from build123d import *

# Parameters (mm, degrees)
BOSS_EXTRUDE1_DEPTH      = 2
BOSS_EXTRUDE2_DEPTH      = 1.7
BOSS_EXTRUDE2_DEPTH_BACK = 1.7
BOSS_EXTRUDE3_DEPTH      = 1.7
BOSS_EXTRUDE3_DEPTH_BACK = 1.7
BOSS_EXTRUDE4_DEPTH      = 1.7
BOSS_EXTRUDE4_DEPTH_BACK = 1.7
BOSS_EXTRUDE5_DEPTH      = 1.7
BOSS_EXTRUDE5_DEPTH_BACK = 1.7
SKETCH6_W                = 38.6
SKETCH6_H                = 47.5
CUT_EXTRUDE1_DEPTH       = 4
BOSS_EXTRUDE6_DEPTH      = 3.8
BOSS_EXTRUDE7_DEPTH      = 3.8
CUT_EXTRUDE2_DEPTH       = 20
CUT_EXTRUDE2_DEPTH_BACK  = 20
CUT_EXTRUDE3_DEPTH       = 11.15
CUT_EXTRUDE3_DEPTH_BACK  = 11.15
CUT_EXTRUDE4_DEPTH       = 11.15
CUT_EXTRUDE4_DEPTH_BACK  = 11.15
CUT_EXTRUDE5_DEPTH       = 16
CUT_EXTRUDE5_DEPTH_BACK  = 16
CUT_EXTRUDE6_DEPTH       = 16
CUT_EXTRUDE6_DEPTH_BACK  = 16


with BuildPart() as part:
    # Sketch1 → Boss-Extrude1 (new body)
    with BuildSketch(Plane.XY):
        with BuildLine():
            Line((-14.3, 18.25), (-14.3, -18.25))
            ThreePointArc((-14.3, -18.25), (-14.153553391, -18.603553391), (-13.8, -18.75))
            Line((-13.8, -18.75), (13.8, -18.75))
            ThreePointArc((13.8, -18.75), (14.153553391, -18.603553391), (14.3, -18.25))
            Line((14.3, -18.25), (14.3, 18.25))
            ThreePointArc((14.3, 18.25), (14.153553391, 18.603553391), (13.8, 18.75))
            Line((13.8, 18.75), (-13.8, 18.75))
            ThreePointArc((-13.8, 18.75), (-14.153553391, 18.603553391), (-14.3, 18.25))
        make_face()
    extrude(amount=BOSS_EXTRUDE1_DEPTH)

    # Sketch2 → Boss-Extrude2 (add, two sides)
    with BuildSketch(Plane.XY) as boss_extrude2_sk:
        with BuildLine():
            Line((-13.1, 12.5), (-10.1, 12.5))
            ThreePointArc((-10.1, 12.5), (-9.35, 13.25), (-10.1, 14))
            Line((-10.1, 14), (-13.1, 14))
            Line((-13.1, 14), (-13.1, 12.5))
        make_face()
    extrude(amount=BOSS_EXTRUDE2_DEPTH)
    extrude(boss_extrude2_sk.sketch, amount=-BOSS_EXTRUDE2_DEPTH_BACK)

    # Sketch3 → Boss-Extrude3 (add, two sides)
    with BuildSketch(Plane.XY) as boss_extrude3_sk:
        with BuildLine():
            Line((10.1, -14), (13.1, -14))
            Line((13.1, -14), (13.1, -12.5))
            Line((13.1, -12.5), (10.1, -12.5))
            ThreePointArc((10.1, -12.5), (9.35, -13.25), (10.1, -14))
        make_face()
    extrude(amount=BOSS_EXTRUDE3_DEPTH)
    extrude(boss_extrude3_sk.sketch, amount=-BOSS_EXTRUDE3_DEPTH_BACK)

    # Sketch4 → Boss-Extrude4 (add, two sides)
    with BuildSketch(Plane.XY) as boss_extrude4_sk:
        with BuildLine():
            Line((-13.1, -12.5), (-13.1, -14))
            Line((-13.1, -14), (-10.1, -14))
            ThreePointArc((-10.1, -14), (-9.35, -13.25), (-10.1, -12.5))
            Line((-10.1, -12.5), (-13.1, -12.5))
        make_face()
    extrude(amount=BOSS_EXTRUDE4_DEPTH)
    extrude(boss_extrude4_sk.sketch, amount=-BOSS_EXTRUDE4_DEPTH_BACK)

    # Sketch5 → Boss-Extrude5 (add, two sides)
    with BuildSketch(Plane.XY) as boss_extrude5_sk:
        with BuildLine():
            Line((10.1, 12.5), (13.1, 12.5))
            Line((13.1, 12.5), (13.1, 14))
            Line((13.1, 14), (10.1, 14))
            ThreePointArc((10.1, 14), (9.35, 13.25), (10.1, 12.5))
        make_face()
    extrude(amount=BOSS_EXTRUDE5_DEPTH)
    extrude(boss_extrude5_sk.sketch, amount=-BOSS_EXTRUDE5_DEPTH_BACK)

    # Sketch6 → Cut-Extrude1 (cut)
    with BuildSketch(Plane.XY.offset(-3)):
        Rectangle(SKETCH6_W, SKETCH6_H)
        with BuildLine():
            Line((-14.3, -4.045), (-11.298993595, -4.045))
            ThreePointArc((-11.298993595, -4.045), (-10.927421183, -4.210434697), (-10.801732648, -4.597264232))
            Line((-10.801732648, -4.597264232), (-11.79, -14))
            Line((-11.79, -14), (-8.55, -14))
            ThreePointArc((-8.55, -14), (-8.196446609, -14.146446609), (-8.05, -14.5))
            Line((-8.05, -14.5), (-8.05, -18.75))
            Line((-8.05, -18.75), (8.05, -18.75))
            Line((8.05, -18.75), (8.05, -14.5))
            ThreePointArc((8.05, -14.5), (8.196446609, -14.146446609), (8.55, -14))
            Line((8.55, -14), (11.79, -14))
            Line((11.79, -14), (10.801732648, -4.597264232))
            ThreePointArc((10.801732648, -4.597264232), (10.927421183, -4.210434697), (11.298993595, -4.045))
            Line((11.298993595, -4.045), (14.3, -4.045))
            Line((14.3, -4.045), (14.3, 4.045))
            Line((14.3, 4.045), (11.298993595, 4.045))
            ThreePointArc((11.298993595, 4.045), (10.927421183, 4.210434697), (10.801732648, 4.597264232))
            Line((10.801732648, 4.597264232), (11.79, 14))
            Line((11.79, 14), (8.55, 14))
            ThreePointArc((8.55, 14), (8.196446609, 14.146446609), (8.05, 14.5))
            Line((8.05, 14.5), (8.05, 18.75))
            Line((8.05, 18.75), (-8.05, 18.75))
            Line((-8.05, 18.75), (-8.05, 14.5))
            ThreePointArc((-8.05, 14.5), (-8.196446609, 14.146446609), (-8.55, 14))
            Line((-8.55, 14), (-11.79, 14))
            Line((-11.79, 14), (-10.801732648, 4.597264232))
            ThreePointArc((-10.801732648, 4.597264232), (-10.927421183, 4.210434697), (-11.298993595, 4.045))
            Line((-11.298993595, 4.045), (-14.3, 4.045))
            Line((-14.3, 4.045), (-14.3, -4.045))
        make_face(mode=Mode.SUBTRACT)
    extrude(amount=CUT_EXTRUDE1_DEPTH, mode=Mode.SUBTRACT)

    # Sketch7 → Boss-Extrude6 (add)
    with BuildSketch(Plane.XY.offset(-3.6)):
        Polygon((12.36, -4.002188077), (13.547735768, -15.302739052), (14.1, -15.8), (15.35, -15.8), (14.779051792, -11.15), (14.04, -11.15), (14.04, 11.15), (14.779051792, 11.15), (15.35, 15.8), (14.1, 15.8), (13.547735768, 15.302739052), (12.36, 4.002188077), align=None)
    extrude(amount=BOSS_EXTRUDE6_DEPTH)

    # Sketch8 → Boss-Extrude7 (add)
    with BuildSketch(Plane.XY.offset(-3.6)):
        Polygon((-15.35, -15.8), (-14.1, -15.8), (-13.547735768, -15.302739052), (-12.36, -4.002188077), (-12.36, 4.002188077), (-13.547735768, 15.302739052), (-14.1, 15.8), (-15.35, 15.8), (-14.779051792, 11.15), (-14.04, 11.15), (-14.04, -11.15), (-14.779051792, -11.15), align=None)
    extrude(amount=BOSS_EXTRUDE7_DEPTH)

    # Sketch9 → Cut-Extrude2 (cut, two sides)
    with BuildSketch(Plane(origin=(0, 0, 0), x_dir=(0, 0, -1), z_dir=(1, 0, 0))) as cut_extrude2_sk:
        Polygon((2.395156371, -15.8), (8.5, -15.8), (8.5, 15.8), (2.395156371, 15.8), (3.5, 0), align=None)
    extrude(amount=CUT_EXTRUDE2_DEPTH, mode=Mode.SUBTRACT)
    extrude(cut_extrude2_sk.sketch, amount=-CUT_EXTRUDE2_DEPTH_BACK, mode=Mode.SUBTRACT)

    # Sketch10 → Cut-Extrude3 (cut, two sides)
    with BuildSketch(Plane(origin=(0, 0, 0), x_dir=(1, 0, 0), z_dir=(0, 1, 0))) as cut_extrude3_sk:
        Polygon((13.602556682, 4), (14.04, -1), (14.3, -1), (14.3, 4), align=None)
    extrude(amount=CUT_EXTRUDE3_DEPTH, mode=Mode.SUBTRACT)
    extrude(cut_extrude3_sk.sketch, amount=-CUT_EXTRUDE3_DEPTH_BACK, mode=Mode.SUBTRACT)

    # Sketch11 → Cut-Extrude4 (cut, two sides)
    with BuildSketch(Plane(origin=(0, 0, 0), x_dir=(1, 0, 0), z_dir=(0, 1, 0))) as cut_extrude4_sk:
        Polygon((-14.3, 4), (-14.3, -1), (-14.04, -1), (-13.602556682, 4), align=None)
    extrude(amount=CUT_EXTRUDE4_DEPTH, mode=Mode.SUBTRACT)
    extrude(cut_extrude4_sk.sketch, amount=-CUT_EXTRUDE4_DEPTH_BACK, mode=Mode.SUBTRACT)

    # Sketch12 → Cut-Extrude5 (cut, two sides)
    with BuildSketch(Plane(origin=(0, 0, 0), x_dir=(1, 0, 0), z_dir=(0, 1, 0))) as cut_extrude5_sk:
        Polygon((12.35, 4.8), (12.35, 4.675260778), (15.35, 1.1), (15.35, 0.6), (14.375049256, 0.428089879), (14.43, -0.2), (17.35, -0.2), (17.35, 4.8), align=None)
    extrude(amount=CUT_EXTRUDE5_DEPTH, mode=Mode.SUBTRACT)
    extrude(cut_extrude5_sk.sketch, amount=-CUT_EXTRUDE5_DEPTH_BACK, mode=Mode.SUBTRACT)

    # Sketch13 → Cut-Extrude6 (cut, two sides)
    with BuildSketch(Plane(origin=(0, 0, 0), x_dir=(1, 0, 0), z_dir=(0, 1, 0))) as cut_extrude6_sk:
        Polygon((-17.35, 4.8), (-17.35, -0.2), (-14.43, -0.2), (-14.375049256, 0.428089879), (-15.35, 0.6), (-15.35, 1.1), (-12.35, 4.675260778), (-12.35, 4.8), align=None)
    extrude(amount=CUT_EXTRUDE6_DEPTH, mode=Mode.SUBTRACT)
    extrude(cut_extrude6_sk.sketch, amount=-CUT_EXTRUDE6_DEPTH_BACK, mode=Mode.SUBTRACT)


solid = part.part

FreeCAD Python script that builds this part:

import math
import FreeCAD as App
import Part
import Sketcher

V = App.Vector
Q = App.Units.Quantity

doc = App.newDocument("Part")
body = doc.addObject("PartDesign::Body", "Body")

sketch1 = body.newObject("Sketcher::SketchObject", "Sketch")
sketch1.AttachmentSupport = (doc.getObject("XY_Plane"), [""])
sketch1.MapMode = "FlatFace"
sketch1.addGeometry(Part.LineSegment(V(-14.3, 18.25, 0), V(-14.3, -18.25, 0)), False)
sketch1.addGeometry(Part.ArcOfCircle(Part.Circle(V(-13.8, -18.25, 0), V(0, 0, 1), 0.5), math.radians(180), math.radians(270)), False)
sketch1.addGeometry(Part.LineSegment(V(-13.8, -18.75, 0), V(13.8, -18.75, 0)), False)
sketch1.addGeometry(Part.ArcOfCircle(Part.Circle(V(13.8, -18.25, 0), V(0, 0, 1), 0.5), math.radians(-90), math.radians(0)), False)
sketch1.addGeometry(Part.LineSegment(V(14.3, -18.25, 0), V(14.3, 18.25, 0)), False)
sketch1.addGeometry(Part.ArcOfCircle(Part.Circle(V(13.8, 18.25, 0), V(0, 0, 1), 0.5), math.radians(0), math.radians(90)), False)
sketch1.addGeometry(Part.LineSegment(V(13.8, 18.75, 0), V(-13.8, 18.75, 0)), False)
sketch1.addGeometry(Part.ArcOfCircle(Part.Circle(V(-13.8, 18.25, 0), V(0, 0, 1), 0.5), math.radians(90), math.radians(180)), False)
sketch1.addConstraint(Sketcher.Constraint("Tangent", 0, 2, 1, 1))
sketch1.addConstraint(Sketcher.Constraint("Tangent", 1, 2, 2, 1))
sketch1.addConstraint(Sketcher.Constraint("Tangent", 2, 2, 3, 1))
sketch1.addConstraint(Sketcher.Constraint("Tangent", 3, 2, 4, 1))
sketch1.addConstraint(Sketcher.Constraint("Tangent", 4, 2, 5, 1))
sketch1.addConstraint(Sketcher.Constraint("Tangent", 5, 2, 6, 1))
sketch1.addConstraint(Sketcher.Constraint("Tangent", 6, 2, 7, 1))
sketch1.addConstraint(Sketcher.Constraint("Tangent", 7, 2, 0, 1))
sketch1.addConstraint(Sketcher.Constraint("Vertical", 0))
sketch1.addConstraint(Sketcher.Constraint("Horizontal", 2))
sketch1.addConstraint(Sketcher.Constraint("Vertical", 4))
sketch1.addConstraint(Sketcher.Constraint("Horizontal", 6))
sketch1.addConstraint(Sketcher.Constraint("Equal", 1, 3))
sketch1.addConstraint(Sketcher.Constraint("Equal", 3, 5))
sketch1.addConstraint(Sketcher.Constraint("Equal", 5, 7))
sketch1.addConstraint(Sketcher.Constraint("Symmetric", 1, 3, 5, 3, -1, 1))
sketch1.addConstraint(Sketcher.Constraint("Radius", 1, 0.5))
sketch1.addConstraint(Sketcher.Constraint("DistanceX", 2, 1, 2, 2, 27.6))
sketch1.addConstraint(Sketcher.Constraint("DistanceY", 0, 2, 0, 1, 36.5))
pad1 = body.newObject("PartDesign::Pad", "Pad")
pad1.Profile = sketch1
pad1.Length = 2

sketch2 = body.newObject("Sketcher::SketchObject", "Sketch001")
sketch2.AttachmentSupport = (doc.getObject("XY_Plane"), [""])
sketch2.MapMode = "FlatFace"
sketch2.addGeometry(Part.LineSegment(V(-13.1, 12.5, 0), V(-10.1, 12.5, 0)), False)
sketch2.addGeometry(Part.ArcOfCircle(Part.Circle(V(-10.1, 13.2, 0), V(0, 0, 1), 0.8), math.radians(-90), math.radians(90)), False)
sketch2.addGeometry(Part.LineSegment(V(-10.1, 14, 0), V(-13.1, 14, 0)), False)
sketch2.addGeometry(Part.LineSegment(V(-13.1, 14, 0), V(-13.1, 12.5, 0)), False)
sketch2.addConstraint(Sketcher.Constraint("Tangent", 0, 2, 1, 1))
sketch2.addConstraint(Sketcher.Constraint("Tangent", 1, 2, 2, 1))
sketch2.addConstraint(Sketcher.Constraint("Coincident", 2, 2, 3, 1))
sketch2.addConstraint(Sketcher.Constraint("Coincident", 3, 2, 0, 1))
sketch2.addConstraint(Sketcher.Constraint("Horizontal", 0))
sketch2.addConstraint(Sketcher.Constraint("Horizontal", 2))
sketch2.addConstraint(Sketcher.Constraint("Vertical", 3))
sketch2.addConstraint(Sketcher.Constraint("DistanceX", 0, 1, 0, 2, 3.0))
sketch2.addConstraint(Sketcher.Constraint("Radius", 1, 0.75))
sketch2.addConstraint(Sketcher.Constraint("DistanceY", -1, 1, 1, 2, 14.0))
sketch2.addConstraint(Sketcher.Constraint("DistanceX", 1, 3, -1, 1, 10.1))
pad2 = body.newObject("PartDesign::Pad", "Pad001")
pad2.Profile = sketch2
pad2.Type = "TwoLengths"
pad2.Length = 1.7
pad2.Length2 = 1.7

sketch3 = body.newObject("Sketcher::SketchObject", "Sketch002")
sketch3.AttachmentSupport = (doc.getObject("XY_Plane"), [""])
sketch3.MapMode = "FlatFace"
sketch3.addGeometry(Part.LineSegment(V(10.1, -14, 0), V(13.1, -14, 0)), False)
sketch3.addGeometry(Part.LineSegment(V(13.1, -14, 0), V(13.1, -12.5, 0)), False)
sketch3.addGeometry(Part.LineSegment(V(13.1, -12.5, 0), V(10.1, -12.5, 0)), False)
sketch3.addGeometry(Part.ArcOfCircle(Part.Circle(V(10.1, -13.2, 0), V(0, 0, 1), 0.8), math.radians(90), math.radians(270)), False)
sketch3.addConstraint(Sketcher.Constraint("Coincident", 0, 2, 1, 1))
sketch3.addConstraint(Sketcher.Constraint("Coincident", 1, 2, 2, 1))
sketch3.addConstraint(Sketcher.Constraint("Tangent", 2, 2, 3, 1))
sketch3.addConstraint(Sketcher.Constraint("Tangent", 3, 2, 0, 1))
sketch3.addConstraint(Sketcher.Constraint("Horizontal", 0))
sketch3.addConstraint(Sketcher.Constraint("Vertical", 1))
sketch3.addConstraint(Sketcher.Constraint("Horizontal", 2))
sketch3.addConstraint(Sketcher.Constraint("DistanceX", 0, 1, 0, 2, 3.0))
sketch3.addConstraint(Sketcher.Constraint("Radius", 3, 0.75))
sketch3.addConstraint(Sketcher.Constraint("DistanceY", 0, 2, -1, 1, 14.0))
sketch3.addConstraint(Sketcher.Constraint("DistanceX", -1, 1, 3, 3, 10.1))
pad3 = body.newObject("PartDesign::Pad", "Pad002")
pad3.Profile = sketch3
pad3.Type = "TwoLengths"
pad3.Length = 1.7
pad3.Length2 = 1.7

sketch4 = body.newObject("Sketcher::SketchObject", "Sketch003")
sketch4.AttachmentSupport = (doc.getObject("XY_Plane"), [""])
sketch4.MapMode = "FlatFace"
sketch4.addGeometry(Part.LineSegment(V(-13.1, -12.5, 0), V(-13.1, -14, 0)), False)
sketch4.addGeometry(Part.LineSegment(V(-13.1, -14, 0), V(-10.1, -14, 0)), False)
sketch4.addGeometry(Part.ArcOfCircle(Part.Circle(V(-10.1, -13.2, 0), V(0, 0, 1), 0.8), math.radians(-90), math.radians(90)), False)
sketch4.addGeometry(Part.LineSegment(V(-10.1, -12.5, 0), V(-13.1, -12.5, 0)), False)
sketch4.addConstraint(Sketcher.Constraint("Coincident", 0, 2, 1, 1))
sketch4.addConstraint(Sketcher.Constraint("Tangent", 1, 2, 2, 1))
sketch4.addConstraint(Sketcher.Constraint("Tangent", 2, 2, 3, 1))
sketch4.addConstraint(Sketcher.Constraint("Coincident", 3, 2, 0, 1))
sketch4.addConstraint(Sketcher.Constraint("Vertical", 0))
sketch4.addConstraint(Sketcher.Constraint("Horizontal", 1))
sketch4.addConstraint(Sketcher.Constraint("Horizontal", 3))
sketch4.addConstraint(Sketcher.Constraint("DistanceX", 1, 1, 1, 2, 3.0))
sketch4.addConstraint(Sketcher.Constraint("Radius", 2, 0.75))
sketch4.addConstraint(Sketcher.Constraint("DistanceY", 0, 2, -1, 1, 14.0))
sketch4.addConstraint(Sketcher.Constraint("DistanceX", 2, 3, -1, 1, 10.1))
pad4 = body.newObject("PartDesign::Pad", "Pad003")
pad4.Profile = sketch4
pad4.Type = "TwoLengths"
pad4.Length = 1.7
pad4.Length2 = 1.7

sketch5 = body.newObject("Sketcher::SketchObject", "Sketch004")
sketch5.AttachmentSupport = (doc.getObject("XY_Plane"), [""])
sketch5.MapMode = "FlatFace"
sketch5.addGeometry(Part.LineSegment(V(10.1, 12.5, 0), V(13.1, 12.5, 0)), False)
sketch5.addGeometry(Part.LineSegment(V(13.1, 12.5, 0), V(13.1, 14, 0)), False)
sketch5.addGeometry(Part.LineSegment(V(13.1, 14, 0), V(10.1, 14, 0)), False)
sketch5.addGeometry(Part.ArcOfCircle(Part.Circle(V(10.1, 13.2, 0), V(0, 0, 1), 0.8), math.radians(90), math.radians(270)), False)
sketch5.addConstraint(Sketcher.Constraint("Coincident", 0, 2, 1, 1))
sketch5.addConstraint(Sketcher.Constraint("Coincident", 1, 2, 2, 1))
sketch5.addConstraint(Sketcher.Constraint("Tangent", 2, 2, 3, 1))
sketch5.addConstraint(Sketcher.Constraint("Tangent", 3, 2, 0, 1))
sketch5.addConstraint(Sketcher.Constraint("Horizontal", 0))
sketch5.addConstraint(Sketcher.Constraint("Vertical", 1))
sketch5.addConstraint(Sketcher.Constraint("Horizontal", 2))
sketch5.addConstraint(Sketcher.Constraint("DistanceX", 0, 1, 0, 2, 3.0))
sketch5.addConstraint(Sketcher.Constraint("Radius", 3, 0.75))
sketch5.addConstraint(Sketcher.Constraint("DistanceY", -1, 1, 1, 2, 14.0))
sketch5.addConstraint(Sketcher.Constraint("DistanceX", -1, 1, 3, 3, 10.1))
pad5 = body.newObject("PartDesign::Pad", "Pad004")
pad5.Profile = sketch5
pad5.Type = "TwoLengths"
pad5.Length = 1.7
pad5.Length2 = 1.7

sketch6 = body.newObject("Sketcher::SketchObject", "Sketch005")
sketch6.AttachmentSupport = (doc.getObject("XY_Plane"), [""])
sketch6.MapMode = "FlatFace"
sketch6.AttachmentOffset = App.Placement(V(0, 0, -3), App.Rotation())
sketch6.addGeometry(Part.LineSegment(V(-19.3, 23.75, 0), V(-19.3, -23.75, 0)), False)
sketch6.addGeometry(Part.LineSegment(V(-19.3, -23.75, 0), V(19.3, -23.75, 0)), False)
sketch6.addGeometry(Part.LineSegment(V(19.3, -23.75, 0), V(19.3, 23.75, 0)), False)
sketch6.addGeometry(Part.LineSegment(V(19.3, 23.75, 0), V(-19.3, 23.75, 0)), False)
sketch6.addGeometry(Part.LineSegment(V(-11.3, -4.04, 0), V(-14.3, -4.04, 0)), False)
sketch6.addGeometry(Part.LineSegment(V(-14.3, -4.04, 0), V(-14.3, 4.04, 0)), False)
sketch6.addGeometry(Part.LineSegment(V(-14.3, 4.04, 0), V(-11.3, 4.04, 0)), False)
sketch6.addGeometry(Part.ArcOfCircle(Part.Circle(V(-11.3, 4.54, 0), V(0, 0, 1), 0.5), math.radians(-90), math.radians(6)), False)
sketch6.addGeometry(Part.LineSegment(V(-10.8, 4.6, 0), V(-11.79, 14, 0)), False)
sketch6.addGeometry(Part.LineSegment(V(-11.79, 14, 0), V(-8.55, 14, 0)), False)
sketch6.addGeometry(Part.ArcOfCircle(Part.Circle(V(-8.55, 14.5, 0), V(0, 0, 1), 0.5), math.radians(-90), math.radians(0)), False)
sketch6.addGeometry(Part.LineSegment(V(-8.05, 14.5, 0), V(-8.05, 18.75, 0)), False)
sketch6.addGeometry(Part.LineSegment(V(-8.05, 18.75, 0), V(8.05, 18.75, 0)), False)
sketch6.addGeometry(Part.LineSegment(V(8.05, 18.75, 0), V(8.05, 14.5, 0)), False)
sketch6.addGeometry(Part.ArcOfCircle(Part.Circle(V(8.55, 14.5, 0), V(0, 0, 1), 0.5), math.radians(180), math.radians(270)), False)
sketch6.addGeometry(Part.LineSegment(V(8.55, 14, 0), V(11.79, 14, 0)), False)
sketch6.addGeometry(Part.LineSegment(V(11.79, 14, 0), V(10.8, 4.6, 0)), False)
sketch6.addGeometry(Part.ArcOfCircle(Part.Circle(V(11.3, 4.54, 0), V(0, 0, 1), 0.5), math.radians(174), math.radians(270)), False)
sketch6.addGeometry(Part.LineSegment(V(11.3, 4.04, 0), V(14.3, 4.04, 0)), False)
sketch6.addGeometry(Part.LineSegment(V(14.3, 4.04, 0), V(14.3, -4.04, 0)), False)
sketch6.addGeometry(Part.LineSegment(V(14.3, -4.04, 0), V(11.3, -4.04, 0)), False)
sketch6.addGeometry(Part.ArcOfCircle(Part.Circle(V(11.3, -4.54, 0), V(0, 0, 1), 0.5), math.radians(90), math.radians(186)), False)
sketch6.addGeometry(Part.LineSegment(V(10.8, -4.6, 0), V(11.79, -14, 0)), False)
sketch6.addGeometry(Part.LineSegment(V(11.79, -14, 0), V(8.55, -14, 0)), False)
sketch6.addGeometry(Part.ArcOfCircle(Part.Circle(V(8.55, -14.5, 0), V(0, 0, 1), 0.5), math.radians(90), math.radians(180)), False)
sketch6.addGeometry(Part.LineSegment(V(8.05, -14.5, 0), V(8.05, -18.75, 0)), False)
sketch6.addGeometry(Part.LineSegment(V(8.05, -18.75, 0), V(-8.05, -18.75, 0)), False)
sketch6.addGeometry(Part.LineSegment(V(-8.05, -18.75, 0), V(-8.05, -14.5, 0)), False)
sketch6.addGeometry(Part.ArcOfCircle(Part.Circle(V(-8.55, -14.5, 0), V(0, 0, 1), 0.5), math.radians(0), math.radians(90)), False)
sketch6.addGeometry(Part.LineSegment(V(-8.55, -14, 0), V(-11.79, -14, 0)), False)
sketch6.addGeometry(Part.LineSegment(V(-11.79, -14, 0), V(-10.8, -4.6, 0)), False)
sketch6.addGeometry(Part.ArcOfCircle(Part.Circle(V(-11.3, -4.54, 0), V(0, 0, 1), 0.5), math.radians(-6), math.radians(90)), False)
sketch6.addConstraint(Sketcher.Constraint("Coincident", 0, 2, 1, 1))
sketch6.addConstraint(Sketcher.Constraint("Coincident", 1, 2, 2, 1))
sketch6.addConstraint(Sketcher.Constraint("Coincident", 2, 2, 3, 1))
sketch6.addConstraint(Sketcher.Constraint("Coincident", 3, 2, 0, 1))
sketch6.addConstraint(Sketcher.Constraint("Coincident", 4, 2, 5, 1))
sketch6.addConstraint(Sketcher.Constraint("Coincident", 5, 2, 6, 1))
sketch6.addConstraint(Sketcher.Constraint("Tangent", 6, 2, 7, 1))
sketch6.addConstraint(Sketcher.Constraint("Tangent", 7, 2, 8, 1))
sketch6.addConstraint(Sketcher.Constraint("Coincident", 8, 2, 9, 1))
sketch6.addConstraint(Sketcher.Constraint("Tangent", 9, 2, 10, 1))
sketch6.addConstraint(Sketcher.Constraint("Tangent", 10, 2, 11, 1))
sketch6.addConstraint(Sketcher.Constraint("Coincident", 11, 2, 12, 1))
sketch6.addConstraint(Sketcher.Constraint("Coincident", 12, 2, 13, 1))
sketch6.addConstraint(Sketcher.Constraint("Tangent", 13, 2, 14, 1))
sketch6.addConstraint(Sketcher.Constraint("Tangent", 14, 2, 15, 1))
sketch6.addConstraint(Sketcher.Constraint("Coincident", 15, 2, 16, 1))
sketch6.addConstraint(Sketcher.Constraint("Tangent", 16, 2, 17, 1))
sketch6.addConstraint(Sketcher.Constraint("Tangent", 17, 2, 18, 1))
sketch6.addConstraint(Sketcher.Constraint("Coincident", 18, 2, 19, 1))
sketch6.addConstraint(Sketcher.Constraint("Coincident", 19, 2, 20, 1))
sketch6.addConstraint(Sketcher.Constraint("Tangent", 20, 2, 21, 1))
sketch6.addConstraint(Sketcher.Constraint("Tangent", 21, 2, 22, 1))
sketch6.addConstraint(Sketcher.Constraint("Coincident", 22, 2, 23, 1))
sketch6.addConstraint(Sketcher.Constraint("Tangent", 23, 2, 24, 1))
sketch6.addConstraint(Sketcher.Constraint("Tangent", 24, 2, 25, 1))
sketch6.addConstraint(Sketcher.Constraint("Coincident", 25, 2, 26, 1))
sketch6.addConstraint(Sketcher.Constraint("Coincident", 26, 2, 27, 1))
sketch6.addConstraint(Sketcher.Constraint("Tangent", 27, 2, 28, 1))
sketch6.addConstraint(Sketcher.Constraint("Tangent", 28, 2, 29, 1))
sketch6.addConstraint(Sketcher.Constraint("Coincident", 29, 2, 30, 1))
sketch6.addConstraint(Sketcher.Constraint("Tangent", 30, 2, 31, 1))
sketch6.addConstraint(Sketcher.Constraint("Tangent", 31, 2, 4, 1))
sketch6.addConstraint(Sketcher.Constraint("Vertical", 0))
sketch6.addConstraint(Sketcher.Constraint("Horizontal", 1))
sketch6.addConstraint(Sketcher.Constraint("Vertical", 2))
sketch6.addConstraint(Sketcher.Constraint("Horizontal", 3))
sketch6.addConstraint(Sketcher.Constraint("Horizontal", 4))
sketch6.addConstraint(Sketcher.Constraint("Vertical", 5))
sketch6.addConstraint(Sketcher.Constraint("Horizontal", 6))
sketch6.addConstraint(Sketcher.Constraint("Horizontal", 9))
sketch6.addConstraint(Sketcher.Constraint("Vertical", 11))
sketch6.addConstraint(Sketcher.Constraint("Horizontal", 12))
sketch6.addConstraint(Sketcher.Constraint("Vertical", 13))
sketch6.addConstraint(Sketcher.Constraint("Horizontal", 15))
sketch6.addConstraint(Sketcher.Constraint("Horizontal", 18))
sketch6.addConstraint(Sketcher.Constraint("Vertical", 19))
sketch6.addConstraint(Sketcher.Constraint("Horizontal", 20))
sketch6.addConstraint(Sketcher.Constraint("Horizontal", 23))
sketch6.addConstraint(Sketcher.Constraint("Vertical", 25))
sketch6.addConstraint(Sketcher.Constraint("Horizontal", 26))
sketch6.addConstraint(Sketcher.Constraint("Vertical", 27))
sketch6.addConstraint(Sketcher.Constraint("Horizontal", 29))
sketch6.addConstraint(Sketcher.Constraint("Equal", 7, 10))
sketch6.addConstraint(Sketcher.Constraint("Equal", 10, 14))
sketch6.addConstraint(Sketcher.Constraint("Equal", 14, 17))
sketch6.addConstraint(Sketcher.Constraint("Equal", 17, 21))
sketch6.addConstraint(Sketcher.Constraint("Equal", 21, 24))
sketch6.addConstraint(Sketcher.Constraint("Equal", 24, 28))
sketch6.addConstraint(Sketcher.Constraint("Equal", 28, 31))
sketch6.addConstraint(Sketcher.Constraint("Symmetric", 7, 3, 21, 3, -1, 1))
sketch6.addConstraint(Sketcher.Constraint("Symmetric", 10, 3, 24, 3, -1, 1))
sketch6.addConstraint(Sketcher.Constraint("Symmetric", 14, 3, 28, 3, -1, 1))
sketch6.addConstraint(Sketcher.Constraint("Symmetric", 17, 3, 31, 3, -1, 1))
sketch6.addConstraint(Sketcher.Constraint("Symmetric", 0, 2, 2, 2, -1, 1))
sketch6.addConstraint(Sketcher.Constraint("Symmetric", 10, 3, 14, 3, -2))
sketch6.addConstraint(Sketcher.Constraint("Symmetric", 7, 3, 17, 3, -2))
sketch6.addConstraint(Sketcher.Constraint("Parallel", 8, 22))
sketch6.addConstraint(Sketcher.Constraint("Parallel", 16, 30))
sketch6.addConstraint(Sketcher.Constraint("Horizontal", 7, 2, 16, 2))
sketch6.addConstraint(Sketcher.Constraint("Equal", 6, 18))
sketch6.addConstraint(Sketcher.Constraint("Equal", 13, 25))
sketch6.addConstraint(Sketcher.Constraint("Radius", 7, 0.5))
sketch6.addConstraint(Sketcher.Constraint("Angle", 8, Q("96 deg")))
sketch6.addConstraint(Sketcher.Constraint("DistanceX", 1, 1, 1, 2, 38.6))
sketch6.addConstraint(Sketcher.Constraint("DistanceX", 12, 1, 12, 2, 16.1))
sketch6.addConstraint(Sketcher.Constraint("DistanceY", 0, 2, 0, 1, 47.5))
sketch6.addConstraint(Sketcher.Constraint("DistanceY", -1, 1, 8, 2, 14.0))
sketch6.addConstraint(Sketcher.Constraint("DistanceX", 0, 2, 4, 2, 5.0))
sketch6.addConstraint(Sketcher.Constraint("DistanceY", 11, 2, 3, 2, 5.0))
sketch6.addConstraint(Sketcher.Constraint("DistanceX", 9, 1, 9, 2, 3.24))
sketch6.addConstraint(Sketcher.Constraint("DistanceY", 5, 1, 5, 2, 8.09))
pocket1 = body.newObject("PartDesign::Pocket", "Pocket")
pocket1.Profile = sketch6
pocket1.Length = 4
pocket1.Reversed = True

sketch7 = body.newObject("Sketcher::SketchObject", "Sketch006")
sketch7.AttachmentSupport = (doc.getObject("XY_Plane"), [""])
sketch7.MapMode = "FlatFace"
sketch7.AttachmentOffset = App.Placement(V(0, 0, -3.6), App.Rotation())
sketch7.addGeometry(Part.LineSegment(V(12.4, -4, 0), V(13.5, -15.3, 0)), False)
sketch7.addGeometry(Part.LineSegment(V(13.5, -15.3, 0), V(14.1, -15.8, 0)), False)
sketch7.addGeometry(Part.LineSegment(V(14.1, -15.8, 0), V(15.3, -15.8, 0)), False)
sketch7.addGeometry(Part.LineSegment(V(15.3, -15.8, 0), V(14.8, -11.2, 0)), False)
sketch7.addGeometry(Part.LineSegment(V(14.8, -11.2, 0), V(14, -11.2, 0)), False)
sketch7.addGeometry(Part.LineSegment(V(14, -11.2, 0), V(14, 11.2, 0)), False)
sketch7.addGeometry(Part.LineSegment(V(14, 11.2, 0), V(14.8, 11.2, 0)), False)
sketch7.addGeometry(Part.LineSegment(V(14.8, 11.2, 0), V(15.3, 15.8, 0)), False)
sketch7.addGeometry(Part.LineSegment(V(15.3, 15.8, 0), V(14.1, 15.8, 0)), False)
sketch7.addGeometry(Part.LineSegment(V(14.1, 15.8, 0), V(13.5, 15.3, 0)), False)
sketch7.addGeometry(Part.LineSegment(V(13.5, 15.3, 0), V(12.4, 4, 0)), False)
sketch7.addGeometry(Part.LineSegment(V(12.4, 4, 0), V(12.4, -4, 0)), False)
sketch7.addConstraint(Sketcher.Constraint("Coincident", 0, 2, 1, 1))
sketch7.addConstraint(Sketcher.Constraint("Coincident", 1, 2, 2, 1))
sketch7.addConstraint(Sketcher.Constraint("Coincident", 2, 2, 3, 1))
sketch7.addConstraint(Sketcher.Constraint("Coincident", 3, 2, 4, 1))
sketch7.addConstraint(Sketcher.Constraint("Coincident", 4, 2, 5, 1))
sketch7.addConstraint(Sketcher.Constraint("Coincident", 5, 2, 6, 1))
sketch7.addConstraint(Sketcher.Constraint("Coincident", 6, 2, 7, 1))
sketch7.addConstraint(Sketcher.Constraint("Coincident", 7, 2, 8, 1))
sketch7.addConstraint(Sketcher.Constraint("Coincident", 8, 2, 9, 1))
sketch7.addConstraint(Sketcher.Constraint("Coincident", 9, 2, 10, 1))
sketch7.addConstraint(Sketcher.Constraint("Coincident", 10, 2, 11, 1))
sketch7.addConstraint(Sketcher.Constraint("Coincident", 11, 2, 0, 1))
sketch7.addConstraint(Sketcher.Constraint("Horizontal", 2))
sketch7.addConstraint(Sketcher.Constraint("Horizontal", 4))
sketch7.addConstraint(Sketcher.Constraint("Vertical", 5))
sketch7.addConstraint(Sketcher.Constraint("Horizontal", 6))
sketch7.addConstraint(Sketcher.Constraint("Horizontal", 8))
sketch7.addConstraint(Sketcher.Constraint("Vertical", 11))
sketch7.addConstraint(Sketcher.Constraint("Symmetric", 3, 2, 6, 2, -1))
sketch7.addConstraint(Sketcher.Constraint("Symmetric", 2, 2, 7, 2, -1))
sketch7.addConstraint(Sketcher.Constraint("Symmetric", 0, 2, 9, 2, -1))
sketch7.addConstraint(Sketcher.Constraint("Vertical", 1, 2, 8, 2))
sketch7.addConstraint(Sketcher.Constraint("Equal", 0, 10))
sketch7.addConstraint(Sketcher.Constraint("Angle", 0, Q("-84 deg")))
sketch7.addConstraint(Sketcher.Constraint("Angle", 1, Q("-42 deg")))
sketch7.addConstraint(Sketcher.Constraint("Angle", 3, Q("97 deg")))
sketch7.addConstraint(Sketcher.Constraint("DistanceY", 5, 1, 5, 2, 22.3))
sketch7.addConstraint(Sketcher.Constraint("DistanceX", 2, 1, 2, 2, 1.25))
sketch7.addConstraint(Sketcher.Constraint("DistanceX", -1, 1, 1, 2, 14.1))
sketch7.addConstraint(Sketcher.Constraint("DistanceY", 1, 2, -1, 1, 15.8))
sketch7.addConstraint(Sketcher.Constraint("DistanceX", -1, 1, 4, 2, 14.04))
sketch7.addConstraint(Sketcher.Constraint("DistanceX", -1, 1, 10, 2, 12.36))
sketch7.addConstraint(Sketcher.Constraint("DistanceY", 11, 2, 11, 1, 8.004376))
pad6 = body.newObject("PartDesign::Pad", "Pad005")
pad6.Profile = sketch7
pad6.Length = 3.8

sketch8 = body.newObject("Sketcher::SketchObject", "Sketch007")
sketch8.AttachmentSupport = (doc.getObject("XY_Plane"), [""])
sketch8.MapMode = "FlatFace"
sketch8.AttachmentOffset = App.Placement(V(0, 0, -3.6), App.Rotation())
sketch8.addGeometry(Part.LineSegment(V(-15.3, -15.8, 0), V(-14.1, -15.8, 0)), False)
sketch8.addGeometry(Part.LineSegment(V(-14.1, -15.8, 0), V(-13.5, -15.3, 0)), False)
sketch8.addGeometry(Part.LineSegment(V(-13.5, -15.3, 0), V(-12.4, -4, 0)), False)
sketch8.addGeometry(Part.LineSegment(V(-12.4, -4, 0), V(-12.4, 4, 0)), False)
sketch8.addGeometry(Part.LineSegment(V(-12.4, 4, 0), V(-13.5, 15.3, 0)), False)
sketch8.addGeometry(Part.LineSegment(V(-13.5, 15.3, 0), V(-14.1, 15.8, 0)), False)
sketch8.addGeometry(Part.LineSegment(V(-14.1, 15.8, 0), V(-15.3, 15.8, 0)), False)
sketch8.addGeometry(Part.LineSegment(V(-15.3, 15.8, 0), V(-14.8, 11.2, 0)), False)
sketch8.addGeometry(Part.LineSegment(V(-14.8, 11.2, 0), V(-14, 11.2, 0)), False)
sketch8.addGeometry(Part.LineSegment(V(-14, 11.2, 0), V(-14, -11.2, 0)), False)
sketch8.addGeometry(Part.LineSegment(V(-14, -11.2, 0), V(-14.8, -11.2, 0)), False)
sketch8.addGeometry(Part.LineSegment(V(-14.8, -11.2, 0), V(-15.3, -15.8, 0)), False)
sketch8.addConstraint(Sketcher.Constraint("Coincident", 0, 2, 1, 1))
sketch8.addConstraint(Sketcher.Constraint("Coincident", 1, 2, 2, 1))
sketch8.addConstraint(Sketcher.Constraint("Coincident", 2, 2, 3, 1))
sketch8.addConstraint(Sketcher.Constraint("Coincident", 3, 2, 4, 1))
sketch8.addConstraint(Sketcher.Constraint("Coincident", 4, 2, 5, 1))
sketch8.addConstraint(Sketcher.Constraint("Coincident", 5, 2, 6, 1))
sketch8.addConstraint(Sketcher.Constraint("Coincident", 6, 2, 7, 1))
sketch8.addConstraint(Sketcher.Constraint("Coincident", 7, 2, 8, 1))
sketch8.addConstraint(Sketcher.Constraint("Coincident", 8, 2, 9, 1))
sketch8.addConstraint(Sketcher.Constraint("Coincident", 9, 2, 10, 1))
sketch8.addConstraint(Sketcher.Constraint("Coincident", 10, 2, 11, 1))
sketch8.addConstraint(Sketcher.Constraint("Coincident", 11, 2, 0, 1))
sketch8.addConstraint(Sketcher.Constraint("Horizontal", 0))
sketch8.addConstraint(Sketcher.Constraint("Vertical", 3))
sketch8.addConstraint(Sketcher.Constraint("Horizontal", 6))
sketch8.addConstraint(Sketcher.Constraint("Horizontal", 8))
sketch8.addConstraint(Sketcher.Constraint("Vertical", 9))
sketch8.addConstraint(Sketcher.Constraint("Horizontal", 10))
sketch8.addConstraint(Sketcher.Constraint("Symmetric", 1, 2, 4, 2, -1))
sketch8.addConstraint(Sketcher.Constraint("Symmetric", 0, 2, 5, 2, -1))
sketch8.addConstraint(Sketcher.Constraint("Symmetric", 7, 2, 10, 2, -1))
sketch8.addConstraint(Sketcher.Constraint("Vertical", 6, 2, 11, 2))
sketch8.addConstraint(Sketcher.Constraint("Equal", 2, 4))
sketch8.addConstraint(Sketcher.Constraint("Angle", 1, Q("42 deg")))
sketch8.addConstraint(Sketcher.Constraint("Angle", 2, Q("84 deg")))
sketch8.addConstraint(Sketcher.Constraint("Angle", 7, Q("-83 deg")))
sketch8.addConstraint(Sketcher.Constraint("DistanceY", 9, 2, 9, 1, 22.3))
sketch8.addConstraint(Sketcher.Constraint("DistanceX", 0, 1, 0, 2, 1.25))
sketch8.addConstraint(Sketcher.Constraint("DistanceX", 0, 2, -1, 1, 14.1))
sketch8.addConstraint(Sketcher.Constraint("DistanceY", 0, 2, -1, 1, 15.8))
sketch8.addConstraint(Sketcher.Constraint("DistanceX", 2, 2, -1, 1, 12.36))
sketch8.addConstraint(Sketcher.Constraint("DistanceX", 8, 2, -1, 1, 14.04))
sketch8.addConstraint(Sketcher.Constraint("DistanceY", 3, 1, 3, 2, 8.004376))
pad7 = body.newObject("PartDesign::Pad", "Pad006")
pad7.Profile = sketch8
pad7.Length = 3.8

sketch9 = body.newObject("Sketcher::SketchObject", "Sketch008")
sketch9.AttachmentSupport = (doc.getObject("YZ_Plane"), [""])
sketch9.MapMode = "FlatFace"
sketch9.addGeometry(Part.LineSegment(V(-16, -2, 0), V(-16, -8, 0)), False)
sketch9.addGeometry(Part.LineSegment(V(-16, -8, 0), V(16, -8, 0)), False)
sketch9.addGeometry(Part.LineSegment(V(16, -8, 0), V(16, -2, 0)), False)
sketch9.addGeometry(Part.LineSegment(V(16, -2, 0), V(0, -4, 0)), False)
sketch9.addGeometry(Part.LineSegment(V(0, -4, 0), V(-16, -2, 0)), False)
sketch9.addConstraint(Sketcher.Constraint("Coincident", 0, 2, 1, 1))
sketch9.addConstraint(Sketcher.Constraint("Coincident", 1, 2, 2, 1))
sketch9.addConstraint(Sketcher.Constraint("Coincident", 2, 2, 3, 1))
sketch9.addConstraint(Sketcher.Constraint("Coincident", 3, 2, 4, 1))
sketch9.addConstraint(Sketcher.Constraint("Coincident", 4, 2, 0, 1))
sketch9.addConstraint(Sketcher.Constraint("Vertical", 0))
sketch9.addConstraint(Sketcher.Constraint("Horizontal", 1))
sketch9.addConstraint(Sketcher.Constraint("Vertical", 2))
sketch9.addConstraint(Sketcher.Constraint("Symmetric", 2, 2, 4, 2, -2))
sketch9.addConstraint(Sketcher.Constraint("PointOnObject", 3, 2, -2))
sketch9.addConstraint(Sketcher.Constraint("Angle", 3, Q("-176 deg")))
sketch9.addConstraint(Sketcher.Constraint("DistanceX", 1, 1, 1, 2, 31.6))
sketch9.addConstraint(Sketcher.Constraint("DistanceY", 0, 2, 3, 2, 5.0))
sketch9.addConstraint(Sketcher.Constraint("DistanceY", 0, 2, -1, 1, 8.5))
pocket2 = body.newObject("PartDesign::Pocket", "Pocket001")
pocket2.Profile = sketch9
pocket2.Type = "ThroughAll"
pocket2.Midplane = True

sketch10 = body.newObject("Sketcher::SketchObject", "Sketch009")
sketch10.AttachmentSupport = (doc.getObject("XZ_Plane"), [""])
sketch10.MapMode = "FlatFace"
sketch10.addGeometry(Part.LineSegment(V(13.6, -4, 0), V(14.04, 1, 0)), False)
sketch10.addGeometry(Part.LineSegment(V(14.04, 1, 0), V(14.3, 1, 0)), False)
sketch10.addGeometry(Part.LineSegment(V(14.3, 1, 0), V(14.3, -4, 0)), False)
sketch10.addGeometry(Part.LineSegment(V(14.3, -4, 0), V(13.6, -4, 0)), False)
sketch10.addConstraint(Sketcher.Constraint("Coincident", 0, 2, 1, 1))
sketch10.addConstraint(Sketcher.Constraint("Coincident", 1, 2, 2, 1))
sketch10.addConstraint(Sketcher.Constraint("Coincident", 2, 2, 3, 1))
sketch10.addConstraint(Sketcher.Constraint("Coincident", 3, 2, 0, 1))
sketch10.addConstraint(Sketcher.Constraint("Horizontal", 1))
sketch10.addConstraint(Sketcher.Constraint("Vertical", 2))
sketch10.addConstraint(Sketcher.Constraint("Horizontal", 3))
sketch10.addConstraint(Sketcher.Constraint("DistanceY", 2, 2, 2, 1, 5.0))
sketch10.addConstraint(Sketcher.Constraint("Angle", 0, Q("85 deg")))
sketch10.addConstraint(Sketcher.Constraint("DistanceY", -1, 1, 0, 2, 1.0))
sketch10.addConstraint(Sketcher.Constraint("DistanceX", 1, 1, 1, 2, 0.26))
sketch10.addConstraint(Sketcher.Constraint("DistanceX", -1, 1, 1, 2, 14.3))
pocket3 = body.newObject("PartDesign::Pocket", "Pocket002")
pocket3.Profile = sketch10
pocket3.Type = "TwoLengths"
pocket3.Length = 11.15
pocket3.Length2 = 11.15

sketch11 = body.newObject("Sketcher::SketchObject", "Sketch010")
sketch11.AttachmentSupport = (doc.getObject("XZ_Plane"), [""])
sketch11.MapMode = "FlatFace"
sketch11.addGeometry(Part.LineSegment(V(-14.3, -4, 0), V(-14.3, 1, 0)), False)
sketch11.addGeometry(Part.LineSegment(V(-14.3, 1, 0), V(-14.04, 1, 0)), False)
sketch11.addGeometry(Part.LineSegment(V(-14.04, 1, 0), V(-13.6, -4, 0)), False)
sketch11.addGeometry(Part.LineSegment(V(-13.6, -4, 0), V(-14.3, -4, 0)), False)
sketch11.addConstraint(Sketcher.Constraint("Coincident", 0, 2, 1, 1))
sketch11.addConstraint(Sketcher.Constraint("Coincident", 1, 2, 2, 1))
sketch11.addConstraint(Sketcher.Constraint("Coincident", 2, 2, 3, 1))
sketch11.addConstraint(Sketcher.Constraint("Coincident", 3, 2, 0, 1))
sketch11.addConstraint(Sketcher.Constraint("Vertical", 0))
sketch11.addConstraint(Sketcher.Constraint("Horizontal", 1))
sketch11.addConstraint(Sketcher.Constraint("Horizontal", 3))
sketch11.addConstraint(Sketcher.Constraint("DistanceY", 0, 1, 0, 2, 5.0))
sketch11.addConstraint(Sketcher.Constraint("Angle", 2, Q("-85 deg")))
sketch11.addConstraint(Sketcher.Constraint("DistanceY", -1, 1, 0, 2, 1.0))
sketch11.addConstraint(Sketcher.Constraint("DistanceX", 1, 1, 1, 2, 0.26))
sketch11.addConstraint(Sketcher.Constraint("DistanceX", 0, 2, -1, 1, 14.3))
pocket4 = body.newObject("PartDesign::Pocket", "Pocket003")
pocket4.Profile = sketch11
pocket4.Type = "TwoLengths"
pocket4.Length = 11.15
pocket4.Length2 = 11.15

sketch12 = body.newObject("Sketcher::SketchObject", "Sketch011")
sketch12.AttachmentSupport = (doc.getObject("XZ_Plane"), [""])
sketch12.MapMode = "FlatFace"
sketch12.addGeometry(Part.LineSegment(V(12.35, -4.8, 0), V(12.35, -4.68, 0)), False)
sketch12.addGeometry(Part.LineSegment(V(12.35, -4.68, 0), V(15.35, -1.1, 0)), False)
sketch12.addGeometry(Part.LineSegment(V(15.35, -1.1, 0), V(15.35, -0.6, 0)), False)
sketch12.addGeometry(Part.LineSegment(V(15.35, -0.6, 0), V(14.38, -0.43, 0)), False)
sketch12.addGeometry(Part.LineSegment(V(14.38, -0.43, 0), V(14.43, 0.2, 0)), False)
sketch12.addGeometry(Part.LineSegment(V(14.43, 0.2, 0), V(17.35, 0.2, 0)), False)
sketch12.addGeometry(Part.LineSegment(V(17.35, 0.2, 0), V(17.35, -4.8, 0)), False)
sketch12.addGeometry(Part.LineSegment(V(17.35, -4.8, 0), V(12.35, -4.8, 0)), False)
sketch12.addConstraint(Sketcher.Constraint("Coincident", 0, 2, 1, 1))
sketch12.addConstraint(Sketcher.Constraint("Coincident", 1, 2, 2, 1))
sketch12.addConstraint(Sketcher.Constraint("Coincident", 2, 2, 3, 1))
sketch12.addConstraint(Sketcher.Constraint("Coincident", 3, 2, 4, 1))
sketch12.addConstraint(Sketcher.Constraint("Coincident", 4, 2, 5, 1))
sketch12.addConstraint(Sketcher.Constraint("Coincident", 5, 2, 6, 1))
sketch12.addConstraint(Sketcher.Constraint("Coincident", 6, 2, 7, 1))
sketch12.addConstraint(Sketcher.Constraint("Coincident", 7, 2, 0, 1))
sketch12.addConstraint(Sketcher.Constraint("Vertical", 0))
sketch12.addConstraint(Sketcher.Constraint("Vertical", 2))
sketch12.addConstraint(Sketcher.Constraint("Horizontal", 5))
sketch12.addConstraint(Sketcher.Constraint("Vertical", 6))
sketch12.addConstraint(Sketcher.Constraint("Horizontal", 7))
sketch12.addConstraint(Sketcher.Constraint("Equal", 7, 6))
sketch12.addConstraint(Sketcher.Constraint("DistanceX", 7, 2, 7, 1, 5.0))
sketch12.addConstraint(Sketcher.Constraint("Angle", 1, Q("50 deg")))
sketch12.addConstraint(Sketcher.Constraint("Angle", 3, Q("170 deg")))
sketch12.addConstraint(Sketcher.Constraint("Angle", 4, Q("85 deg")))
sketch12.addConstraint(Sketcher.Constraint("DistanceY", 2, 1, 2, 2, 0.5))
sketch12.addConstraint(Sketcher.Constraint("DistanceX", 0, 2, 1, 2, 3.0))
sketch12.addConstraint(Sketcher.Constraint("DistanceX", 5, 1, 5, 2, 2.92))
sketch12.addConstraint(Sketcher.Constraint("DistanceY", 1, 2, -1, 1, 1.1))
sketch12.addConstraint(Sketcher.Constraint("DistanceY", -1, 1, 4, 2, 0.2))
sketch12.addConstraint(Sketcher.Constraint("DistanceX", -1, 1, 0, 2, 12.35))
pocket5 = body.newObject("PartDesign::Pocket", "Pocket004")
pocket5.Profile = sketch12
pocket5.Type = "ThroughAll"
pocket5.Midplane = True

sketch13 = body.newObject("Sketcher::SketchObject", "Sketch012")
sketch13.AttachmentSupport = (doc.getObject("XZ_Plane"), [""])
sketch13.MapMode = "FlatFace"
sketch13.addGeometry(Part.LineSegment(V(-17.35, -4.8, 0), V(-17.35, 0.2, 0)), False)
sketch13.addGeometry(Part.LineSegment(V(-17.35, 0.2, 0), V(-14.43, 0.2, 0)), False)
sketch13.addGeometry(Part.LineSegment(V(-14.43, 0.2, 0), V(-14.38, -0.43, 0)), False)
sketch13.addGeometry(Part.LineSegment(V(-14.38, -0.43, 0), V(-15.35, -0.6, 0)), False)
sketch13.addGeometry(Part.LineSegment(V(-15.35, -0.6, 0), V(-15.35, -1.1, 0)), False)
sketch13.addGeometry(Part.LineSegment(V(-15.35, -1.1, 0), V(-12.35, -4.68, 0)), False)
sketch13.addGeometry(Part.LineSegment(V(-12.35, -4.68, 0), V(-12.35, -4.8, 0)), False)
sketch13.addGeometry(Part.LineSegment(V(-12.35, -4.8, 0), V(-17.35, -4.8, 0)), False)
sketch13.addConstraint(Sketcher.Constraint("Coincident", 0, 2, 1, 1))
sketch13.addConstraint(Sketcher.Constraint("Coincident", 1, 2, 2, 1))
sketch13.addConstraint(Sketcher.Constraint("Coincident", 2, 2, 3, 1))
sketch13.addConstraint(Sketcher.Constraint("Coincident", 3, 2, 4, 1))
sketch13.addConstraint(Sketcher.Constraint("Coincident", 4, 2, 5, 1))
sketch13.addConstraint(Sketcher.Constraint("Coincident", 5, 2, 6, 1))
sketch13.addConstraint(Sketcher.Constraint("Coincident", 6, 2, 7, 1))
sketch13.addConstraint(Sketcher.Constraint("Coincident", 7, 2, 0, 1))
sketch13.addConstraint(Sketcher.Constraint("Vertical", 0))
sketch13.addConstraint(Sketcher.Constraint("Horizontal", 1))
sketch13.addConstraint(Sketcher.Constraint("Vertical", 4))
sketch13.addConstraint(Sketcher.Constraint("Vertical", 6))
sketch13.addConstraint(Sketcher.Constraint("Horizontal", 7))
sketch13.addConstraint(Sketcher.Constraint("Equal", 7, 0))
sketch13.addConstraint(Sketcher.Constraint("DistanceX", 7, 2, 7, 1, 5.0))
sketch13.addConstraint(Sketcher.Constraint("Angle", 2, Q("-85 deg")))
sketch13.addConstraint(Sketcher.Constraint("Angle", 3, Q("-170 deg")))
sketch13.addConstraint(Sketcher.Constraint("Angle", 5, Q("-50 deg")))
sketch13.addConstraint(Sketcher.Constraint("DistanceY", 4, 2, 4, 1, 0.5))
sketch13.addConstraint(Sketcher.Constraint("DistanceX", 0, 2, 3, 2, 2.0))
sketch13.addConstraint(Sketcher.Constraint("DistanceX", 1, 1, 1, 2, 2.92))
sketch13.addConstraint(Sketcher.Constraint("DistanceY", -1, 1, 0, 2, 0.2))
sketch13.addConstraint(Sketcher.Constraint("DistanceY", 3, 2, -1, 1, 0.6))
sketch13.addConstraint(Sketcher.Constraint("DistanceX", 0, 2, -1, 1, 17.35))
pocket6 = body.newObject("PartDesign::Pocket", "Pocket005")
pocket6.Profile = sketch13
pocket6.Type = "ThroughAll"
pocket6.Midplane = True

doc.recompute()
